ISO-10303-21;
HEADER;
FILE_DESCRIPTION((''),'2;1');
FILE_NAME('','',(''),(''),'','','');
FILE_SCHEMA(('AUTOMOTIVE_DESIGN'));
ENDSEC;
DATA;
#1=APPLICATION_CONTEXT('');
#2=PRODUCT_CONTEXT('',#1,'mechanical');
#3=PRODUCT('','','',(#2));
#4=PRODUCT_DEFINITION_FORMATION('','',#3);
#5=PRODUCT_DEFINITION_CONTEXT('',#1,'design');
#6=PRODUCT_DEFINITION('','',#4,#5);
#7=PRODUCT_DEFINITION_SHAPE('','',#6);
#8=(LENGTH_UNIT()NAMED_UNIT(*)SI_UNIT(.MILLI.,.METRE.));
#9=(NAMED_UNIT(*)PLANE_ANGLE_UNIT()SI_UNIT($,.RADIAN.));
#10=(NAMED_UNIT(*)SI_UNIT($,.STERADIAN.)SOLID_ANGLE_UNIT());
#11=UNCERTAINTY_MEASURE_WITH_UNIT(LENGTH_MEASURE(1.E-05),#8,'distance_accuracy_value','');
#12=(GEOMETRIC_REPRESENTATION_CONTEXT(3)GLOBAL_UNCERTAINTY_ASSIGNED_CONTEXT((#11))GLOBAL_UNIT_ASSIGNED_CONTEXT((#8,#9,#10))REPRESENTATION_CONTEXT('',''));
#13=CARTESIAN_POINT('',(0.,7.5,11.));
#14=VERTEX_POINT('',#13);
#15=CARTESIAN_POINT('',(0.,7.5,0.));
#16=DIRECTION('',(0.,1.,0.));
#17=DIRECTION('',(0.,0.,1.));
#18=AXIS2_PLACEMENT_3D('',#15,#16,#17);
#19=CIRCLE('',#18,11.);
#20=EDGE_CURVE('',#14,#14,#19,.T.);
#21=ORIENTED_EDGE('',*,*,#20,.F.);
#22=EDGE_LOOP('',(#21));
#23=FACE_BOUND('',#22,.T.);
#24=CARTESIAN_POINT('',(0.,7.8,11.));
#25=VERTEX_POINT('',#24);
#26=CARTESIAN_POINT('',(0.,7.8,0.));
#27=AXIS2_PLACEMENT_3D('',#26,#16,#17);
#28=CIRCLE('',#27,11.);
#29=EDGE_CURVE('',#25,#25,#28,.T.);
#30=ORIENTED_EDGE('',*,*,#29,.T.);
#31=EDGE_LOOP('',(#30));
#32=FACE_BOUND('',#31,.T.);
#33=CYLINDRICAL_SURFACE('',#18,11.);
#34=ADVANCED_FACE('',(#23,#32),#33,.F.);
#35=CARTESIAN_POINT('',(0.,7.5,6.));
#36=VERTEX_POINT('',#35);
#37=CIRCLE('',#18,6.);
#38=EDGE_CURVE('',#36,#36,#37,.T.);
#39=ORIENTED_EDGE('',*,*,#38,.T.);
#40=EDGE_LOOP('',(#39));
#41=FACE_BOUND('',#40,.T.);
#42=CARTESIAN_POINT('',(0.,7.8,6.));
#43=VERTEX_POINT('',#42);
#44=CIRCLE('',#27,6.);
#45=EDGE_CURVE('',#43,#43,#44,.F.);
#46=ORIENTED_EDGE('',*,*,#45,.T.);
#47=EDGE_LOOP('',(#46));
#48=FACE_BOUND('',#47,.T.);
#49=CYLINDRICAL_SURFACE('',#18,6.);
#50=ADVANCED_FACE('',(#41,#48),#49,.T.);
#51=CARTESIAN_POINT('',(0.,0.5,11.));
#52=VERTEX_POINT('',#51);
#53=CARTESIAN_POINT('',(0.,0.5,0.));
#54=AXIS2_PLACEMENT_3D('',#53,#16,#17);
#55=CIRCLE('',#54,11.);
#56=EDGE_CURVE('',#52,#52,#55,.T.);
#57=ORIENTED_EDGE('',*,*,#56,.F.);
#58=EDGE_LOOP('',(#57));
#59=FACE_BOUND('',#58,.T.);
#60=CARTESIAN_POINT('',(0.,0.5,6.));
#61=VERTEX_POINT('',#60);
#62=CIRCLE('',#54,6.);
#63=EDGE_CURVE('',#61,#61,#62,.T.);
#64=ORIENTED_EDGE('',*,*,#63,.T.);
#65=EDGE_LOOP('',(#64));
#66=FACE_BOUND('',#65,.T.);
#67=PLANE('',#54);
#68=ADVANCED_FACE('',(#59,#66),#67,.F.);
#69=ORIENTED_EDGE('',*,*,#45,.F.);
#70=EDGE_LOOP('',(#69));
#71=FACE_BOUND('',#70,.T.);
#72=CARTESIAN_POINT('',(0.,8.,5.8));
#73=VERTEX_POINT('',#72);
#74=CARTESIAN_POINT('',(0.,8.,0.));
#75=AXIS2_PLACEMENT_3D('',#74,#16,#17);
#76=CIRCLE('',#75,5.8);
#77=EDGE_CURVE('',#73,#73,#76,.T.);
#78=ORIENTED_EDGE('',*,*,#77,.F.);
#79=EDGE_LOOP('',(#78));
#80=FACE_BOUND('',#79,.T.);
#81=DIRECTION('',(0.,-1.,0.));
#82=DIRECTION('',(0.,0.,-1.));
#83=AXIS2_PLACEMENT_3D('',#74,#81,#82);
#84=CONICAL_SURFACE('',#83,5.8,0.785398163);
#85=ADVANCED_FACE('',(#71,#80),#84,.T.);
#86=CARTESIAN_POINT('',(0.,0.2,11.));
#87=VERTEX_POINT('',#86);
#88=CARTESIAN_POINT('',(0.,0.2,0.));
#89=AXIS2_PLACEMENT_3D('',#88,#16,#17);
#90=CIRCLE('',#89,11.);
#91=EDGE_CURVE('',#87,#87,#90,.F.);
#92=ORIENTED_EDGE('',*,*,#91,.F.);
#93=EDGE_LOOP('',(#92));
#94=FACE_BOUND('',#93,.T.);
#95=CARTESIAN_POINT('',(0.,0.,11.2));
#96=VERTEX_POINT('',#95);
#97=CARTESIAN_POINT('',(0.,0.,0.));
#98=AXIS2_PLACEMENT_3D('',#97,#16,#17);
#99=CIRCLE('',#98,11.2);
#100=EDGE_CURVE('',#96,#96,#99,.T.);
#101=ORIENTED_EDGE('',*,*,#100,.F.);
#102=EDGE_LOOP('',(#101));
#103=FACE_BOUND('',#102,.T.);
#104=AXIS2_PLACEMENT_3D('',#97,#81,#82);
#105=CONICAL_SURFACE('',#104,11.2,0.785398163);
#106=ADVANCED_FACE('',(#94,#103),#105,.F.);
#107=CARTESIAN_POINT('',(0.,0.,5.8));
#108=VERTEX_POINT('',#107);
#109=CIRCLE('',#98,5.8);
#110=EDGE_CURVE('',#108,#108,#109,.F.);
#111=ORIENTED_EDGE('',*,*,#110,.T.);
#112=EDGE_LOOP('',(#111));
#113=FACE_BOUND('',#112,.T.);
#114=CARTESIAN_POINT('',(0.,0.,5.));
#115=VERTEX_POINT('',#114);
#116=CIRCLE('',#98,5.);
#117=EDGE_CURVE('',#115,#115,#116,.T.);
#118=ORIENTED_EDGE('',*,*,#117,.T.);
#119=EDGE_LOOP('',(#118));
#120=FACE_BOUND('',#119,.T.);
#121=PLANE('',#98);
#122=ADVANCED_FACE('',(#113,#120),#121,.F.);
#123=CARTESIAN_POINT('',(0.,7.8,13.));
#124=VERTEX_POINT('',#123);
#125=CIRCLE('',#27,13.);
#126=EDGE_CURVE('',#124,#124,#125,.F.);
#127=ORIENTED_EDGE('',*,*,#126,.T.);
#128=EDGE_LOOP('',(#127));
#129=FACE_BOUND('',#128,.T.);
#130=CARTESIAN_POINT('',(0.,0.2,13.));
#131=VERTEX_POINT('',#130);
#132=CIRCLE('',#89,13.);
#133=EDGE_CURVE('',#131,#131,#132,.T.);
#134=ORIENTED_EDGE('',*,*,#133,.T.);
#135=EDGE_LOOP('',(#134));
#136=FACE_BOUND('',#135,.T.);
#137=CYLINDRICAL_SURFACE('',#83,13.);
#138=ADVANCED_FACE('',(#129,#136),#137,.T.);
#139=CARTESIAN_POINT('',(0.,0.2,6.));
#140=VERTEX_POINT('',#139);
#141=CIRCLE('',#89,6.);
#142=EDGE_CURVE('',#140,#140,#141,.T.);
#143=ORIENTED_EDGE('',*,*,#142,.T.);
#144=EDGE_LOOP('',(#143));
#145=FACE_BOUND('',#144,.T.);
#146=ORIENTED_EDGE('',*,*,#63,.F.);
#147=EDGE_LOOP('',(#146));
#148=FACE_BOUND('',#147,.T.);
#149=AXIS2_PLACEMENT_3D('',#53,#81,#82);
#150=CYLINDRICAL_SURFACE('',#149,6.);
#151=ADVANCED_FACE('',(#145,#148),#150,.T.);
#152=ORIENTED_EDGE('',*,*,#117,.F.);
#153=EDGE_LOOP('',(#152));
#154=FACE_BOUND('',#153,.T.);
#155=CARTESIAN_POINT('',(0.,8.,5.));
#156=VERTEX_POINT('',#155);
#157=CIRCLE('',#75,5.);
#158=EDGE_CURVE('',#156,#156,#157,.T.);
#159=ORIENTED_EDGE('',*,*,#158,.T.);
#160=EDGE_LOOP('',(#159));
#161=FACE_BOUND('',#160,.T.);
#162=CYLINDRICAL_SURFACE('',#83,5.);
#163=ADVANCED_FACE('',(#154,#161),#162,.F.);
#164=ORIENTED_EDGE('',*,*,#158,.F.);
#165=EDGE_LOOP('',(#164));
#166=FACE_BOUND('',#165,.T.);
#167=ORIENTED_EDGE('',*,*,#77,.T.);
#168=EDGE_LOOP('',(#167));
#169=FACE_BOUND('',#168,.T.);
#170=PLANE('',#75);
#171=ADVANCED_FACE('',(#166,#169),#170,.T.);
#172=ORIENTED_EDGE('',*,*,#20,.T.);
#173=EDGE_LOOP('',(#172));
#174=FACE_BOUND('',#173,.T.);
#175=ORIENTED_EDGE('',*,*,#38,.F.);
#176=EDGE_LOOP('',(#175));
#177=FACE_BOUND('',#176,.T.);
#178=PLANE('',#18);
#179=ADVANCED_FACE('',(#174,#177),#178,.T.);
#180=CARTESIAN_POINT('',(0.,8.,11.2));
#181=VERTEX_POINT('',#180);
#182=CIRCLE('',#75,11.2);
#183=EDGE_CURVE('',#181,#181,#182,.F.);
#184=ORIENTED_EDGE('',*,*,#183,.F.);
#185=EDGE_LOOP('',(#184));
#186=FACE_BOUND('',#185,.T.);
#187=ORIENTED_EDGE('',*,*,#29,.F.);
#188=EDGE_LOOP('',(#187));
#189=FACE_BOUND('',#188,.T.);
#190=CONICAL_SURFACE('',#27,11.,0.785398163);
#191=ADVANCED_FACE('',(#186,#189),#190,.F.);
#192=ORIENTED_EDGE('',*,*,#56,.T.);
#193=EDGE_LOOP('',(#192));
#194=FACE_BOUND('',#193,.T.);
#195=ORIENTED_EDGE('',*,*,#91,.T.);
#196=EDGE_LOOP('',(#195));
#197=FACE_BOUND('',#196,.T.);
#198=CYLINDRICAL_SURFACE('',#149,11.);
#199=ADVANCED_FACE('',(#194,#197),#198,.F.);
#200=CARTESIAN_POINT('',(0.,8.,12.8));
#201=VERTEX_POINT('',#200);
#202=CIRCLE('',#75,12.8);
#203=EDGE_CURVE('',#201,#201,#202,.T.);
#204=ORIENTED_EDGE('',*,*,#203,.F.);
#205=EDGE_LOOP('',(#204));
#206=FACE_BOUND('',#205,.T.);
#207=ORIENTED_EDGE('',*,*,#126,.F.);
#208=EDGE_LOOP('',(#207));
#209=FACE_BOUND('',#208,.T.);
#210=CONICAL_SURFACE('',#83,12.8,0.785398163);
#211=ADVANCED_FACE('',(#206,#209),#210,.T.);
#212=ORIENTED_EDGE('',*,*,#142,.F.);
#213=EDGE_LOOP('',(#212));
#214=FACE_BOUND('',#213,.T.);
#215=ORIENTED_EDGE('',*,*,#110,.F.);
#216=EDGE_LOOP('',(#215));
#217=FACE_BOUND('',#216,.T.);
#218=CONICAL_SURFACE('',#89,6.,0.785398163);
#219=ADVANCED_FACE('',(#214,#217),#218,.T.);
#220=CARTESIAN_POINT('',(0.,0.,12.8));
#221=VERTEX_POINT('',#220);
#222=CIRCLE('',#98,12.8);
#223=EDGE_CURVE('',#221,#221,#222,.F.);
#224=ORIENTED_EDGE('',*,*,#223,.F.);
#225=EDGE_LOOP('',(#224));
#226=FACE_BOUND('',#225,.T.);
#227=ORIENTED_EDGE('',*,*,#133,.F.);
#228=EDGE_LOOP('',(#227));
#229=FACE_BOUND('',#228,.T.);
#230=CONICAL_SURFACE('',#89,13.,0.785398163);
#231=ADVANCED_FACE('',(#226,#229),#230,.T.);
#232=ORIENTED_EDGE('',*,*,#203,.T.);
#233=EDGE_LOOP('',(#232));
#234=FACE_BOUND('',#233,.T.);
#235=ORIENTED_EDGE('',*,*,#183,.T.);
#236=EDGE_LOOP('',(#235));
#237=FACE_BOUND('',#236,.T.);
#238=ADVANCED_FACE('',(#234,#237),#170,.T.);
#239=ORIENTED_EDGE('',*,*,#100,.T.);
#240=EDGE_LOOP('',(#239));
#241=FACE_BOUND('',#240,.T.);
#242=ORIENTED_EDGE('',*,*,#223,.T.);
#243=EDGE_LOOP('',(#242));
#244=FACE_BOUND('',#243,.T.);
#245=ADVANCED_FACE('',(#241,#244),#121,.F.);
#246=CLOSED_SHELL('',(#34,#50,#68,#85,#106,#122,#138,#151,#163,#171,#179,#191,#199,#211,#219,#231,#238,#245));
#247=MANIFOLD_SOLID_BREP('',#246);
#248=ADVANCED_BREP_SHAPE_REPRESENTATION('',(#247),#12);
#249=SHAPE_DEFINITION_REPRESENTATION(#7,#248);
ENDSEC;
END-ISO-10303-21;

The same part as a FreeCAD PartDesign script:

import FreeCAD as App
import Part
import Sketcher
from FreeCAD import Vector


def edges_at(feature, points):
    """Names of the edges that pass closest to the given points."""
    edges = feature.Shape.Edges
    near = lambda p: min(range(len(edges)), key=lambda i: edges[i].distToShape(Part.Vertex(*p))[0])
    return sorted({f"Edge{near(p) + 1}" for p in points})

doc = App.newDocument("Part")
body = doc.addObject("PartDesign::Body", "Body")

# Sketch on XZ plane
sketch1 = body.newObject("Sketcher::SketchObject", "Sketch")
sketch1.AttachmentSupport = (doc.getObject("XZ_Plane"), [""])
sketch1.MapMode = "FlatFace"
sketch1.addGeometry([
    Part.Circle(Vector(0, 0, 0), Vector(0, 0, 1), 13),
    Part.Circle(Vector(0, 0, 0), Vector(0, 0, 1), 5),
], False)
sketch1.addConstraint([
    Sketcher.Constraint("Coincident", 0, 3, -1, 1),
    Sketcher.Constraint("Coincident", 1, 3, -1, 1),
    Sketcher.Constraint("Diameter", 0, 26.0),
    Sketcher.Constraint("Diameter", 1, 10.0),
])
pad1 = body.newObject("PartDesign::Pad", "Pad")
pad1.Profile = sketch1
pad1.Length = 8
pad1.Reversed = True

# Sketch on XZ plane
sketch2 = body.newObject("Sketcher::SketchObject", "Sketch001")
sketch2.AttachmentSupport = (doc.getObject("XZ_Plane"), [""])
sketch2.MapMode = "FlatFace"
sketch2.AttachmentOffset = App.Placement(Vector(0, 0, -8), App.Rotation())
sketch2.addGeometry([
    Part.Circle(Vector(0, 0, 0), Vector(0, 0, 1), 11),
    Part.Circle(Vector(0, 0, 0), Vector(0, 0, 1), 6),
], False)
sketch2.addConstraint([
    Sketcher.Constraint("Coincident", 0, 3, -1, 1),
    Sketcher.Constraint("Coincident", 1, 3, -1, 1),
    Sketcher.Constraint("Diameter", 0, 22.0),
    Sketcher.Constraint("Diameter", 1, 12.0),
])
pocket1 = body.newObject("PartDesign::Pocket", "Pocket")
pocket1.Profile = sketch2
pocket1.Length = 0.5
pocket1.Reversed = True

# Sketch on XZ plane
sketch3 = body.newObject("Sketcher::SketchObject", "Sketch002")
sketch3.AttachmentSupport = (doc.getObject("XZ_Plane"), [""])
sketch3.MapMode = "FlatFace"
sketch3.AttachmentOffset = App.Placement(Vector(0, 0, -0.5), App.Rotation())
sketch3.addGeometry([
    Part.Circle(Vector(0, 0, 0), Vector(0, 0, 1), 11),
    Part.Circle(Vector(0, 0, 0), Vector(0, 0, 1), 6),
], False)
sketch3.addConstraint([
    Sketcher.Constraint("Coincident", 0, 3, -1, 1),
    Sketcher.Constraint("Coincident", 1, 3, -1, 1),
    Sketcher.Constraint("Diameter", 0, 22.0),
    Sketcher.Constraint("Diameter", 1, 12.0),
])
pocket2 = body.newObject("PartDesign::Pocket", "Pocket001")
pocket2.Profile = sketch3
pocket2.Length = 0.5
pocket2.Reversed = True
doc.recompute()

chamfer = body.newObject("PartDesign::Chamfer", "Chamfer")
chamfer.Base = (pocket2, edges_at(pocket2, [
    (0, 8, -11),
    (0, 8, -6),
    (0, 0, -6),
    (0, 0, -11),
    (0, 0, -13),
    (0, 8, -13),
]))
chamfer.Size = 0.2

doc.recompute()
